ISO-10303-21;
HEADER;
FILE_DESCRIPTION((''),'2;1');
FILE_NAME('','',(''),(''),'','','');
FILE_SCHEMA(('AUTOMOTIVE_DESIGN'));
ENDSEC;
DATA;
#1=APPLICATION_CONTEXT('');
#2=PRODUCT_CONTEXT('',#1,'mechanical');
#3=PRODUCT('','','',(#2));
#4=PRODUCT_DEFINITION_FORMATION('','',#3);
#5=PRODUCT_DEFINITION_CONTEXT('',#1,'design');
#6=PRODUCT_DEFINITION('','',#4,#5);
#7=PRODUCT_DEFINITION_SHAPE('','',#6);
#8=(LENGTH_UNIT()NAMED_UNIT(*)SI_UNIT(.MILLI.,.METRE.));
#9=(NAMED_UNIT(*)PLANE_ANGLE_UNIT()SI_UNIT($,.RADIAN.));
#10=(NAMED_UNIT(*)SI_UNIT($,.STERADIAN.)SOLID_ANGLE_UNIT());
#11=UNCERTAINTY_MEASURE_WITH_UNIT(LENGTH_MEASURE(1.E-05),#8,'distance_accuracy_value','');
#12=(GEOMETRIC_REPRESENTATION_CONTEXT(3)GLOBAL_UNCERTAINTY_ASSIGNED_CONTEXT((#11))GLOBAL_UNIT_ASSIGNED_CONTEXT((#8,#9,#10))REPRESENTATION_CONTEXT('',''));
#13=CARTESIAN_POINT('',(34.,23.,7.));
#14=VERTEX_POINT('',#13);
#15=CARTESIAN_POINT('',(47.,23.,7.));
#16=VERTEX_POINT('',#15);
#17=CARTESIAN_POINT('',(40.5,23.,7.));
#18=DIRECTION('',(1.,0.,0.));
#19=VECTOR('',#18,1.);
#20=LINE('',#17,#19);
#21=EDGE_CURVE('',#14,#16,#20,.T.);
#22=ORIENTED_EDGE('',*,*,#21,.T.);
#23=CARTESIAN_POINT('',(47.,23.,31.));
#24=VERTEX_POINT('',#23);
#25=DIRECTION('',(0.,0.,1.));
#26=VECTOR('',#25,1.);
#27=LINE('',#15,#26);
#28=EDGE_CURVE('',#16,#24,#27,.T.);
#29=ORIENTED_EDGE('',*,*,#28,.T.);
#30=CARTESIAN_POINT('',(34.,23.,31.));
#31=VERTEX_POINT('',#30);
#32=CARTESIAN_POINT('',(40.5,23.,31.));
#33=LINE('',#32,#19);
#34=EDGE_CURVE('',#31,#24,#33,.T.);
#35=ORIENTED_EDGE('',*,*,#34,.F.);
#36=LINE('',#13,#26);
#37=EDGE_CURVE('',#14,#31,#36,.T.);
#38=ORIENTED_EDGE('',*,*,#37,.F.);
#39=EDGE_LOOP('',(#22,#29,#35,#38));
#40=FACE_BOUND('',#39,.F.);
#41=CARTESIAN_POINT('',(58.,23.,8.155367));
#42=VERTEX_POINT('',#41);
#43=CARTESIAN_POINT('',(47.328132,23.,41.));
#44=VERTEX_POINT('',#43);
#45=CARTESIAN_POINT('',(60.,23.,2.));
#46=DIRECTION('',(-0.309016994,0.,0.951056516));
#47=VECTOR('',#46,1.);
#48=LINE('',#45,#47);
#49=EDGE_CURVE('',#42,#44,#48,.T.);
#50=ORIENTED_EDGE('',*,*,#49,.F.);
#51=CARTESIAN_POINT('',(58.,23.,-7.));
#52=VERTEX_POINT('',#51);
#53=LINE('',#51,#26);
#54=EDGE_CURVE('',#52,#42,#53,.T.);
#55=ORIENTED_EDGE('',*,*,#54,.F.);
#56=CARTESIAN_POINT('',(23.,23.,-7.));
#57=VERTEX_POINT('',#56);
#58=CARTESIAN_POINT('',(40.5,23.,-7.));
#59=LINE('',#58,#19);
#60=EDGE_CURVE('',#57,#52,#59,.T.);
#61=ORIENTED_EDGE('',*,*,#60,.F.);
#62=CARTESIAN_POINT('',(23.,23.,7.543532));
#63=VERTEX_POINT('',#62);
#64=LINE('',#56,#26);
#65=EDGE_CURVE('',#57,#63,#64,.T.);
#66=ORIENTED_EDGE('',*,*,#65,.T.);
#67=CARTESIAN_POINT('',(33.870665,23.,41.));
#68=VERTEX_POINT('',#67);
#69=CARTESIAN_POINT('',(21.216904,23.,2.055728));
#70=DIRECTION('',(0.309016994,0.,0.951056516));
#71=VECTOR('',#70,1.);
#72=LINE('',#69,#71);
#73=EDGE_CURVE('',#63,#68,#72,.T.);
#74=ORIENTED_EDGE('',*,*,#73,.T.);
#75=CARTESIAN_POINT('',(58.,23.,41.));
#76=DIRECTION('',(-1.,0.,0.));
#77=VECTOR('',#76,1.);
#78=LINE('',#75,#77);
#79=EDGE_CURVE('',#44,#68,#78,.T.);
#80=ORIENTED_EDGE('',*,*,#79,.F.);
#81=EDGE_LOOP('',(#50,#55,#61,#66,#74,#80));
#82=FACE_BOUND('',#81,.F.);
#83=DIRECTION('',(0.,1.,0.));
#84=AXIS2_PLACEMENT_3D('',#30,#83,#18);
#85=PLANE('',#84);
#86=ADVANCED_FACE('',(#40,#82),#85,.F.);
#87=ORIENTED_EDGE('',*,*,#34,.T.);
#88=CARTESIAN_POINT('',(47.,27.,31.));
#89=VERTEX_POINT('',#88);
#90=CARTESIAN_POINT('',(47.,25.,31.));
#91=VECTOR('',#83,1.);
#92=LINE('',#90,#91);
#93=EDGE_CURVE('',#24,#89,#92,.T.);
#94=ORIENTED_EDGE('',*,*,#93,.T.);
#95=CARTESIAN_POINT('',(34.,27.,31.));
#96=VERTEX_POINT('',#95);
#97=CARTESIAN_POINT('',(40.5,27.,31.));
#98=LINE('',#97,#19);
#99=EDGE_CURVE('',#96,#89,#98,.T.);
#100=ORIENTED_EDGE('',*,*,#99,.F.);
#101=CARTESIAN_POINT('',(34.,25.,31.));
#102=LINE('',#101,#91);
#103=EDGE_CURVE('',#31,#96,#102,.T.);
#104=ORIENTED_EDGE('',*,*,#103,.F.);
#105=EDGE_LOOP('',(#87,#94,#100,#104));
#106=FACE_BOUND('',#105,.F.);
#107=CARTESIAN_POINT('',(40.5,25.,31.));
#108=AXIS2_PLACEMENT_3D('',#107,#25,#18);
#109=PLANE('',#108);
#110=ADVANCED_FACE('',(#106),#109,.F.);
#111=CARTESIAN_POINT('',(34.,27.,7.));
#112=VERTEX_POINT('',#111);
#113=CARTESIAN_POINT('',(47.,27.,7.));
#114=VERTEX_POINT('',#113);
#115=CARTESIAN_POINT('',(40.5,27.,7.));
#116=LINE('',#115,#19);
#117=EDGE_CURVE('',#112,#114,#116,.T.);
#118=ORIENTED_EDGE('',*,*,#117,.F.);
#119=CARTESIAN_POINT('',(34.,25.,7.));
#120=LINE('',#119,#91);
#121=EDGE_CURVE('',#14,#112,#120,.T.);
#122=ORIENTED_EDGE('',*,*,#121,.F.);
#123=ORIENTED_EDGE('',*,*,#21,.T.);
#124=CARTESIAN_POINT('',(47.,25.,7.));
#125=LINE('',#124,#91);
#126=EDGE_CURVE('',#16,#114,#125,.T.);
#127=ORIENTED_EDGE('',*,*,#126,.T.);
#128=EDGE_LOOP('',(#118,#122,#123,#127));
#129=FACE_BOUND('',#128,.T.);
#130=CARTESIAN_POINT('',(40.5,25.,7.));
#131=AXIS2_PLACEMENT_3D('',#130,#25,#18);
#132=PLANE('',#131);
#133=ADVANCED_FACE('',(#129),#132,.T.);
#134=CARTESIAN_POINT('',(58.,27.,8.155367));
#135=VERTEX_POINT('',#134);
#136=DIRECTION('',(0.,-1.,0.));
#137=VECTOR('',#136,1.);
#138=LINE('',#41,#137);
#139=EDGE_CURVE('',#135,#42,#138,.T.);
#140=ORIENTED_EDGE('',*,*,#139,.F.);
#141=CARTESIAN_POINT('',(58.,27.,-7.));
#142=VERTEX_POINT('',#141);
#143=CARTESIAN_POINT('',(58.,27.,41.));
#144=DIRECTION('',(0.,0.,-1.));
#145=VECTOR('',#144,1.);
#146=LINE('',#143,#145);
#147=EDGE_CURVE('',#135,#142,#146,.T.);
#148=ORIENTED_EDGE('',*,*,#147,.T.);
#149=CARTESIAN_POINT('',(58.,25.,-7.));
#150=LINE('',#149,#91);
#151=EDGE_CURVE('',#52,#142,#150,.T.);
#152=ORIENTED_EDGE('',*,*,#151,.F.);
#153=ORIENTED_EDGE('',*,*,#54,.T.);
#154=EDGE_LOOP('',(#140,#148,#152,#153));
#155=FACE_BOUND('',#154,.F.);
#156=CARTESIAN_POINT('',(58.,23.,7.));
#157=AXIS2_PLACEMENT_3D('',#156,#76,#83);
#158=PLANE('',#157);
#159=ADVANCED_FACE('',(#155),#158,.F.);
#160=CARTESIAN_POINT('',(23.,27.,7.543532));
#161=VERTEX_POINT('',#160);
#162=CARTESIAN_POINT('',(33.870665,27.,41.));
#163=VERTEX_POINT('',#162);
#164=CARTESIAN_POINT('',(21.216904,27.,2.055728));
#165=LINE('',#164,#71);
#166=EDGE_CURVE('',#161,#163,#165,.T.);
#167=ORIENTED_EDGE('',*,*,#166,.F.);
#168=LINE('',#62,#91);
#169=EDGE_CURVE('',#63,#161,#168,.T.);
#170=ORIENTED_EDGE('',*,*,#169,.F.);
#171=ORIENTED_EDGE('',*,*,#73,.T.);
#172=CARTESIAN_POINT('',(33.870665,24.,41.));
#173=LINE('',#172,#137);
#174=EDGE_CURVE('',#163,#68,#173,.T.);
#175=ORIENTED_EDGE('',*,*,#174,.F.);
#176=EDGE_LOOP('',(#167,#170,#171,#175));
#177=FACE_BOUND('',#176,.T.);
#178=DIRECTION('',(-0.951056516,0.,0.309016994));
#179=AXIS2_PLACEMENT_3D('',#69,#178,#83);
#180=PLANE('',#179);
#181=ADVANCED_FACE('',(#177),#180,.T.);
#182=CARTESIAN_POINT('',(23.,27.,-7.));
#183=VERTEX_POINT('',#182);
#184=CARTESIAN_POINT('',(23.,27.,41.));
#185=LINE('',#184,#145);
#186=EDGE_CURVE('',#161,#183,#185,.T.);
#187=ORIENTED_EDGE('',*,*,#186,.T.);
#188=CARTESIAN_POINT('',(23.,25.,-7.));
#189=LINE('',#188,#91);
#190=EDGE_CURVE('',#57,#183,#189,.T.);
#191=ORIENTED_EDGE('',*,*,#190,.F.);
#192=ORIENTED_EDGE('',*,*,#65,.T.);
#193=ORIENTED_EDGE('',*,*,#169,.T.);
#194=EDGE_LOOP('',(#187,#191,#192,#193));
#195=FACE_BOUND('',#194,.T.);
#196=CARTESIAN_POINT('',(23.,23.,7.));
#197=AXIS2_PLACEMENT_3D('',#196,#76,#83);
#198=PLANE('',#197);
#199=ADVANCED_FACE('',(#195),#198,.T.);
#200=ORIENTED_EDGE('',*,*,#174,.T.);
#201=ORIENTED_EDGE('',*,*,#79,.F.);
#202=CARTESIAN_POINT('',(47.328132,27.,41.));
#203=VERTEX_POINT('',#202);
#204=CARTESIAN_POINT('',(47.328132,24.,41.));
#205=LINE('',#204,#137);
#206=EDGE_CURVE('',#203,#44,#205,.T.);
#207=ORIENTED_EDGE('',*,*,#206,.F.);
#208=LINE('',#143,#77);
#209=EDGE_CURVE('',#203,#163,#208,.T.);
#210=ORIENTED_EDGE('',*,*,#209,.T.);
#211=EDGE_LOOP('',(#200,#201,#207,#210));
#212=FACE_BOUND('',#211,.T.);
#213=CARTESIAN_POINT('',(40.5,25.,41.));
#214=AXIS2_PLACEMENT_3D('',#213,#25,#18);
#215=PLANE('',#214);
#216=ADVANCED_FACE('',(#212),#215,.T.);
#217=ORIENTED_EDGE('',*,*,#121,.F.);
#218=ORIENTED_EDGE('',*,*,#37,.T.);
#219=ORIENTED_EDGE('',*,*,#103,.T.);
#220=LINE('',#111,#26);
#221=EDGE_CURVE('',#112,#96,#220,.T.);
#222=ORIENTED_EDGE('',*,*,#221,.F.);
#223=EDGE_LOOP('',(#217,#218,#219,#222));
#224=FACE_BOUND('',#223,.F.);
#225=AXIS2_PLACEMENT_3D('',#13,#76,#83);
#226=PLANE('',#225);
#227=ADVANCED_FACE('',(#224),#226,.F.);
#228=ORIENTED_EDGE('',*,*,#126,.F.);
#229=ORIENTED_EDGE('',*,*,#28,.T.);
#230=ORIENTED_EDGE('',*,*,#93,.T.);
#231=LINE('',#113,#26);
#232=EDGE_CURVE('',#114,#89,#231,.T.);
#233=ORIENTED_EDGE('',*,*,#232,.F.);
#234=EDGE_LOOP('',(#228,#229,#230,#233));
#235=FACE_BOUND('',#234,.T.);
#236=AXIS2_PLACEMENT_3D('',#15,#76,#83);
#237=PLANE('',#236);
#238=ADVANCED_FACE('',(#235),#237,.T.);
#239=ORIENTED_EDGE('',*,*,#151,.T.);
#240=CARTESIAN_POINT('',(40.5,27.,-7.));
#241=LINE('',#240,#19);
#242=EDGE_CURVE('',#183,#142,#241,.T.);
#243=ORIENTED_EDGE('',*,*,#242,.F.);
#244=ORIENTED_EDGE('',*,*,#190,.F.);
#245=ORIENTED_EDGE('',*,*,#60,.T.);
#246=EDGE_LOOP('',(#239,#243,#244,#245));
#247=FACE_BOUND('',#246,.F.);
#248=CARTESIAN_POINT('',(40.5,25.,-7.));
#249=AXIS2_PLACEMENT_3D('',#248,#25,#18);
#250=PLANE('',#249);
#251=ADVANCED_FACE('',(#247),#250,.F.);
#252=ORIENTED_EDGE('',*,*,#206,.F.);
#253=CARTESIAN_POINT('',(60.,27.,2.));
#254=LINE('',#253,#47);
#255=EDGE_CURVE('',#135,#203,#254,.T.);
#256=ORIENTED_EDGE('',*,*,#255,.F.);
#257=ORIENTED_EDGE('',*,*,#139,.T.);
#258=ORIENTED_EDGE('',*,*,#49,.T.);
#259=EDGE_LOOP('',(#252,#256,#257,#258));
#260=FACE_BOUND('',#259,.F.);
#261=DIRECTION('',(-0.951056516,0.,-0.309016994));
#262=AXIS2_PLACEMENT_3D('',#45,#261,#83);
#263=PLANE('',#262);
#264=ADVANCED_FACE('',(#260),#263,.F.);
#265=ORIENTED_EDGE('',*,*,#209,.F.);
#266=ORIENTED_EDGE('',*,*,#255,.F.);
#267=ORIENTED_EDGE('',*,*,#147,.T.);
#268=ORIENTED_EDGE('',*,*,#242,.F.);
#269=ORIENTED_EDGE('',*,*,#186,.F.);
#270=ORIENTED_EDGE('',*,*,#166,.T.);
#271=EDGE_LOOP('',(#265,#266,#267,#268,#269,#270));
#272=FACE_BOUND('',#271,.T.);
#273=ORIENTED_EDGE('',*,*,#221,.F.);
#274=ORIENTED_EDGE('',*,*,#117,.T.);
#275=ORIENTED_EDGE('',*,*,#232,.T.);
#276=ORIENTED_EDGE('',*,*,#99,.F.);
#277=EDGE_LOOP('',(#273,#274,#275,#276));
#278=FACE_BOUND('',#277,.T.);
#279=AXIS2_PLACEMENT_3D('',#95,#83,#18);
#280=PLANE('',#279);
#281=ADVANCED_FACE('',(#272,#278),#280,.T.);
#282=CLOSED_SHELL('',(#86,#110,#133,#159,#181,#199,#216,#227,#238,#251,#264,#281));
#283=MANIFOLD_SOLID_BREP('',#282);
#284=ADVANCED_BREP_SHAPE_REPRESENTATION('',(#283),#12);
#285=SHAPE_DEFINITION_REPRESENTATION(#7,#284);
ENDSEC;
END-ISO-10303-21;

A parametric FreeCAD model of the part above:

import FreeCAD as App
import Part
import Sketcher
from FreeCAD import Vector

doc = App.newDocument("Part")
body = doc.addObject("PartDesign::Body", "Body")

sketch1 = body.newObject("Sketcher::SketchObject", "Sketch")
sketch1.AttachmentSupport = (doc.getObject("XY_Plane"), [""])
sketch1.MapMode = "FlatFace"
sketch1.addGeometry([
    Part.LineSegment(Vector(0, 4, 0), Vector(0, 0, 0)),
    Part.LineSegment(Vector(0, 0, 0), Vector(16, 0, 0)),
    Part.LineSegment(Vector(16, 0, 0), Vector(16, 4, 0)),
    Part.LineSegment(Vector(16, 4, 0), Vector(0, 4, 0)),
], False)
sketch1.addConstraint([
    Sketcher.Constraint("Coincident", 0, 2, 1, 1),
    Sketcher.Constraint("Coincident", 1, 2, 2, 1),
    Sketcher.Constraint("Coincident", 2, 2, 3, 1),
    Sketcher.Constraint("Coincident", 3, 2, 0, 1),
    Sketcher.Constraint("Vertical", 0),
    Sketcher.Constraint("Horizontal", 1),
    Sketcher.Constraint("Vertical", 2),
    Sketcher.Constraint("Horizontal", 3),
    Sketcher.Constraint("Coincident", 0, 2, -1, 1),
    Sketcher.Constraint("DistanceX", 1, 1, 1, 2, 16.0),
    Sketcher.Constraint("DistanceY", 0, 2, 0, 1, 4.0),
])
pad1 = body.newObject("PartDesign::Pad", "Pad")
pad1.Profile = sketch1
pad1.Length = 43
body2 = doc.addObject("PartDesign::Body", "Body001")
doc.recompute()

body.Placement = App.Placement(Vector(39, 0, 9), App.Rotation(Vector(0, -1, 0), 18))
boolean = body2.newObject("PartDesign::Boolean", "Boolean")
boolean.Type = "Fuse"
boolean.addObjects([body])
body3 = doc.addObject("PartDesign::Body", "Body002")

sketch2 = body3.newObject("Sketcher::SketchObject", "Sketch001")
sketch2.AttachmentSupport = (doc.getObject("XY_Plane002"), [""])
sketch2.MapMode = "FlatFace"
sketch2.addGeometry([
    Part.LineSegment(Vector(0, 4, 0), Vector(0, 0, 0)),
    Part.LineSegment(Vector(0, 0, 0), Vector(16, 0, 0)),
    Part.LineSegment(Vector(16, 0, 0), Vector(16, 4, 0)),
    Part.LineSegment(Vector(16, 4, 0), Vector(0, 4, 0)),
], False)
sketch2.addConstraint([
    Sketcher.Constraint("Coincident", 0, 2, 1, 1),
    Sketcher.Constraint("Coincident", 1, 2, 2, 1),
    Sketcher.Constraint("Coincident", 2, 2, 3, 1),
    Sketcher.Constraint("Coincident", 3, 2, 0, 1),
    Sketcher.Constraint("Vertical", 0),
    Sketcher.Constraint("Horizontal", 1),
    Sketcher.Constraint("Vertical", 2),
    Sketcher.Constraint("Horizontal", 3),
    Sketcher.Constraint("Coincident", 0, 2, -1, 1),
    Sketcher.Constraint("DistanceX", 1, 1, 1, 2, 16.0),
    Sketcher.Constraint("DistanceY", 0, 2, 0, 1, 4.0),
])
pad2 = body3.newObject("PartDesign::Pad", "Pad001")
pad2.Profile = sketch2
pad2.Length = 43
body4 = doc.addObject("PartDesign::Body", "Body003")
body4.AllowCompound = True
doc.recompute()

body3.Placement = App.Placement(Vector(-15, 0, 14), App.Rotation(Vector(0, 1, 0), 18))
boolean2 = body4.newObject("PartDesign::Boolean", "Boolean001")
boolean2.Type = "Fuse"
boolean2.addObjects([body3])
doc.recompute()

boolean3 = body4.newObject("PartDesign::Boolean", "Boolean002")
boolean3.Type = "Fuse"
boolean3.addObjects([body2])
body5 = doc.addObject("PartDesign::Body", "Body004")

sketch3 = body5.newObject("Sketcher::SketchObject", "Sketch002")
sketch3.AttachmentSupport = (doc.getObject("XY_Plane004"), [""])
sketch3.MapMode = "FlatFace"
sketch3.AttachmentOffset = App.Placement(Vector(0, 0, 14), App.Rotation())
sketch3.addGeometry([
    Part.LineSegment(Vector(2, 4, 0), Vector(2, 0, 0)),
    Part.LineSegment(Vector(2, 0, 0), Vector(13, 0, 0)),
    Part.LineSegment(Vector(13, 0, 0), Vector(13, 4, 0)),
    Part.LineSegment(Vector(13, 4, 0), Vector(2, 4, 0)),
], False)
sketch3.addConstraint([
    Sketcher.Constraint("Coincident", 0, 2, 1, 1),
    Sketcher.Constraint("Coincident", 1, 2, 2, 1),
    Sketcher.Constraint("Coincident", 2, 2, 3, 1),
    Sketcher.Constraint("Coincident", 3, 2, 0, 1),
    Sketcher.Constraint("Vertical", 0),
    Sketcher.Constraint("Horizontal", 1),
    Sketcher.Constraint("Vertical", 2),
    Sketcher.Constraint("Horizontal", 3),
    Sketcher.Constraint("PointOnObject", 0, 2, -1),
    Sketcher.Constraint("DistanceX", 1, 1, 1, 2, 11.0),
    Sketcher.Constraint("DistanceY", 0, 2, 0, 1, 4.0),
    Sketcher.Constraint("DistanceX", -1, 1, 0, 2, 2.0),
])
pad3 = body5.newObject("PartDesign::Pad", "Pad002")
pad3.Profile = sketch3
pad3.Length = 34
body6 = doc.addObject("PartDesign::Body", "Body005")

sketch4 = body6.newObject("Sketcher::SketchObject", "Sketch003")
sketch4.AttachmentSupport = (doc.getObject("XY_Plane005"), [""])
sketch4.MapMode = "FlatFace"
sketch4.AttachmentOffset = App.Placement(Vector(0, 0, 14), App.Rotation())
sketch4.addGeometry([
    Part.LineSegment(Vector(26, 4, 0), Vector(26, 0, 0)),
    Part.LineSegment(Vector(26, 0, 0), Vector(37, 0, 0)),
    Part.LineSegment(Vector(37, 0, 0), Vector(37, 4, 0)),
    Part.LineSegment(Vector(37, 4, 0), Vector(26, 4, 0)),
], False)
sketch4.addConstraint([
    Sketcher.Constraint("Coincident", 0, 2, 1, 1),
    Sketcher.Constraint("Coincident", 1, 2, 2, 1),
    Sketcher.Constraint("Coincident", 2, 2, 3, 1),
    Sketcher.Constraint("Coincident", 3, 2, 0, 1),
    Sketcher.Constraint("Vertical", 0),
    Sketcher.Constraint("Horizontal", 1),
    Sketcher.Constraint("Vertical", 2),
    Sketcher.Constraint("Horizontal", 3),
    Sketcher.Constraint("PointOnObject", 0, 2, -1),
    Sketcher.Constraint("DistanceX", 1, 1, 1, 2, 11.0),
    Sketcher.Constraint("DistanceY", 0, 2, 0, 1, 4.0),
    Sketcher.Constraint("DistanceX", -1, 1, 0, 2, 26.0),
])
pad4 = body6.newObject("PartDesign::Pad", "Pad003")
pad4.Profile = sketch4
pad4.Length = 34
body7 = doc.addObject("PartDesign::Body", "Body006")

sketch5 = body7.newObject("Sketcher::SketchObject", "Sketch004")
sketch5.AttachmentSupport = (doc.getObject("XY_Plane006"), [""])
sketch5.MapMode = "FlatFace"
sketch5.AttachmentOffset = App.Placement(Vector(0, 0, 38), App.Rotation())
sketch5.addGeometry([
    Part.LineSegment(Vector(13, 4, 0), Vector(13, 0, 0)),
    Part.LineSegment(Vector(13, 0, 0), Vector(26, 0, 0)),
    Part.LineSegment(Vector(26, 0, 0), Vector(26, 4, 0)),
    Part.LineSegment(Vector(26, 4, 0), Vector(13, 4, 0)),
], False)
sketch5.addConstraint([
    Sketcher.Constraint("Coincident", 0, 2, 1, 1),
    Sketcher.Constraint("Coincident", 1, 2, 2, 1),
    Sketcher.Constraint("Coincident", 2, 2, 3, 1),
    Sketcher.Constraint("Coincident", 3, 2, 0, 1),
    Sketcher.Constraint("Vertical", 0),
    Sketcher.Constraint("Horizontal", 1),
    Sketcher.Constraint("Vertical", 2),
    Sketcher.Constraint("Horizontal", 3),
    Sketcher.Constraint("PointOnObject", 0, 2, -1),
    Sketcher.Constraint("DistanceX", 1, 1, 1, 2, 13.0),
    Sketcher.Constraint("DistanceY", 0, 2, 0, 1, 4.0),
    Sketcher.Constraint("DistanceX", -1, 1, 0, 2, 13.0),
])
pad5 = body7.newObject("PartDesign::Pad", "Pad004")
pad5.Profile = sketch5
pad5.Length = 10
body8 = doc.addObject("PartDesign::Body", "Body007")

sketch6 = body8.newObject("Sketcher::SketchObject", "Sketch005")
sketch6.AttachmentSupport = (doc.getObject("XY_Plane007"), [""])
sketch6.MapMode = "FlatFace"
sketch6.addGeometry([
    Part.LineSegment(Vector(2, 4, 0), Vector(2, 0, 0)),
    Part.LineSegment(Vector(2, 0, 0), Vector(37, 0, 0)),
    Part.LineSegment(Vector(37, 0, 0), Vector(37, 4, 0)),
    Part.LineSegment(Vector(37, 4, 0), Vector(2, 4, 0)),
], False)
sketch6.addConstraint([
    Sketcher.Constraint("Coincident", 0, 2, 1, 1),
    Sketcher.Constraint("Coincident", 1, 2, 2, 1),
    Sketcher.Constraint("Coincident", 2, 2, 3, 1),
    Sketcher.Constraint("Coincident", 3, 2, 0, 1),
    Sketcher.Constraint("Vertical", 0),
    Sketcher.Constraint("Horizontal", 1),
    Sketcher.Constraint("Vertical", 2),
    Sketcher.Constraint("Horizontal", 3),
    Sketcher.Constraint("PointOnObject", 0, 2, -1),
    Sketcher.Constraint("DistanceX", 1, 1, 1, 2, 35.0),
    Sketcher.Constraint("DistanceY", 0, 2, 0, 1, 4.0),
    Sketcher.Constraint("DistanceX", -1, 1, 0, 2, 2.0),
])
pad6 = body8.newObject("PartDesign::Pad", "Pad005")
pad6.Profile = sketch6
pad6.Length = 14
doc.recompute()

boolean4 = body8.newObject("PartDesign::Boolean", "Boolean003")
boolean4.Type = "Fuse"
boolean4.addObjects([body5])
doc.recompute()

boolean5 = body8.newObject("PartDesign::Boolean", "Boolean004")
boolean5.Type = "Fuse"
boolean5.addObjects([body6])
doc.recompute()

boolean6 = body8.newObject("PartDesign::Boolean", "Boolean005")
boolean6.Type = "Fuse"
boolean6.addObjects([body7])
doc.recompute()

boolean7 = body8.newObject("PartDesign::Boolean", "Boolean006")
boolean7.Type = "Cut"
boolean7.addObjects([body4])
body9 = doc.addObject("PartDesign::Body", "Body008")
doc.recompute()

body8.Placement = App.Placement(Vector(21, 23, -7), App.Rotation(Vector(0, 0, 1), 0))
boolean8 = body9.newObject("PartDesign::Boolean", "Boolean007")
boolean8.Type = "Fuse"
boolean8.addObjects([body8])

doc.recompute()
